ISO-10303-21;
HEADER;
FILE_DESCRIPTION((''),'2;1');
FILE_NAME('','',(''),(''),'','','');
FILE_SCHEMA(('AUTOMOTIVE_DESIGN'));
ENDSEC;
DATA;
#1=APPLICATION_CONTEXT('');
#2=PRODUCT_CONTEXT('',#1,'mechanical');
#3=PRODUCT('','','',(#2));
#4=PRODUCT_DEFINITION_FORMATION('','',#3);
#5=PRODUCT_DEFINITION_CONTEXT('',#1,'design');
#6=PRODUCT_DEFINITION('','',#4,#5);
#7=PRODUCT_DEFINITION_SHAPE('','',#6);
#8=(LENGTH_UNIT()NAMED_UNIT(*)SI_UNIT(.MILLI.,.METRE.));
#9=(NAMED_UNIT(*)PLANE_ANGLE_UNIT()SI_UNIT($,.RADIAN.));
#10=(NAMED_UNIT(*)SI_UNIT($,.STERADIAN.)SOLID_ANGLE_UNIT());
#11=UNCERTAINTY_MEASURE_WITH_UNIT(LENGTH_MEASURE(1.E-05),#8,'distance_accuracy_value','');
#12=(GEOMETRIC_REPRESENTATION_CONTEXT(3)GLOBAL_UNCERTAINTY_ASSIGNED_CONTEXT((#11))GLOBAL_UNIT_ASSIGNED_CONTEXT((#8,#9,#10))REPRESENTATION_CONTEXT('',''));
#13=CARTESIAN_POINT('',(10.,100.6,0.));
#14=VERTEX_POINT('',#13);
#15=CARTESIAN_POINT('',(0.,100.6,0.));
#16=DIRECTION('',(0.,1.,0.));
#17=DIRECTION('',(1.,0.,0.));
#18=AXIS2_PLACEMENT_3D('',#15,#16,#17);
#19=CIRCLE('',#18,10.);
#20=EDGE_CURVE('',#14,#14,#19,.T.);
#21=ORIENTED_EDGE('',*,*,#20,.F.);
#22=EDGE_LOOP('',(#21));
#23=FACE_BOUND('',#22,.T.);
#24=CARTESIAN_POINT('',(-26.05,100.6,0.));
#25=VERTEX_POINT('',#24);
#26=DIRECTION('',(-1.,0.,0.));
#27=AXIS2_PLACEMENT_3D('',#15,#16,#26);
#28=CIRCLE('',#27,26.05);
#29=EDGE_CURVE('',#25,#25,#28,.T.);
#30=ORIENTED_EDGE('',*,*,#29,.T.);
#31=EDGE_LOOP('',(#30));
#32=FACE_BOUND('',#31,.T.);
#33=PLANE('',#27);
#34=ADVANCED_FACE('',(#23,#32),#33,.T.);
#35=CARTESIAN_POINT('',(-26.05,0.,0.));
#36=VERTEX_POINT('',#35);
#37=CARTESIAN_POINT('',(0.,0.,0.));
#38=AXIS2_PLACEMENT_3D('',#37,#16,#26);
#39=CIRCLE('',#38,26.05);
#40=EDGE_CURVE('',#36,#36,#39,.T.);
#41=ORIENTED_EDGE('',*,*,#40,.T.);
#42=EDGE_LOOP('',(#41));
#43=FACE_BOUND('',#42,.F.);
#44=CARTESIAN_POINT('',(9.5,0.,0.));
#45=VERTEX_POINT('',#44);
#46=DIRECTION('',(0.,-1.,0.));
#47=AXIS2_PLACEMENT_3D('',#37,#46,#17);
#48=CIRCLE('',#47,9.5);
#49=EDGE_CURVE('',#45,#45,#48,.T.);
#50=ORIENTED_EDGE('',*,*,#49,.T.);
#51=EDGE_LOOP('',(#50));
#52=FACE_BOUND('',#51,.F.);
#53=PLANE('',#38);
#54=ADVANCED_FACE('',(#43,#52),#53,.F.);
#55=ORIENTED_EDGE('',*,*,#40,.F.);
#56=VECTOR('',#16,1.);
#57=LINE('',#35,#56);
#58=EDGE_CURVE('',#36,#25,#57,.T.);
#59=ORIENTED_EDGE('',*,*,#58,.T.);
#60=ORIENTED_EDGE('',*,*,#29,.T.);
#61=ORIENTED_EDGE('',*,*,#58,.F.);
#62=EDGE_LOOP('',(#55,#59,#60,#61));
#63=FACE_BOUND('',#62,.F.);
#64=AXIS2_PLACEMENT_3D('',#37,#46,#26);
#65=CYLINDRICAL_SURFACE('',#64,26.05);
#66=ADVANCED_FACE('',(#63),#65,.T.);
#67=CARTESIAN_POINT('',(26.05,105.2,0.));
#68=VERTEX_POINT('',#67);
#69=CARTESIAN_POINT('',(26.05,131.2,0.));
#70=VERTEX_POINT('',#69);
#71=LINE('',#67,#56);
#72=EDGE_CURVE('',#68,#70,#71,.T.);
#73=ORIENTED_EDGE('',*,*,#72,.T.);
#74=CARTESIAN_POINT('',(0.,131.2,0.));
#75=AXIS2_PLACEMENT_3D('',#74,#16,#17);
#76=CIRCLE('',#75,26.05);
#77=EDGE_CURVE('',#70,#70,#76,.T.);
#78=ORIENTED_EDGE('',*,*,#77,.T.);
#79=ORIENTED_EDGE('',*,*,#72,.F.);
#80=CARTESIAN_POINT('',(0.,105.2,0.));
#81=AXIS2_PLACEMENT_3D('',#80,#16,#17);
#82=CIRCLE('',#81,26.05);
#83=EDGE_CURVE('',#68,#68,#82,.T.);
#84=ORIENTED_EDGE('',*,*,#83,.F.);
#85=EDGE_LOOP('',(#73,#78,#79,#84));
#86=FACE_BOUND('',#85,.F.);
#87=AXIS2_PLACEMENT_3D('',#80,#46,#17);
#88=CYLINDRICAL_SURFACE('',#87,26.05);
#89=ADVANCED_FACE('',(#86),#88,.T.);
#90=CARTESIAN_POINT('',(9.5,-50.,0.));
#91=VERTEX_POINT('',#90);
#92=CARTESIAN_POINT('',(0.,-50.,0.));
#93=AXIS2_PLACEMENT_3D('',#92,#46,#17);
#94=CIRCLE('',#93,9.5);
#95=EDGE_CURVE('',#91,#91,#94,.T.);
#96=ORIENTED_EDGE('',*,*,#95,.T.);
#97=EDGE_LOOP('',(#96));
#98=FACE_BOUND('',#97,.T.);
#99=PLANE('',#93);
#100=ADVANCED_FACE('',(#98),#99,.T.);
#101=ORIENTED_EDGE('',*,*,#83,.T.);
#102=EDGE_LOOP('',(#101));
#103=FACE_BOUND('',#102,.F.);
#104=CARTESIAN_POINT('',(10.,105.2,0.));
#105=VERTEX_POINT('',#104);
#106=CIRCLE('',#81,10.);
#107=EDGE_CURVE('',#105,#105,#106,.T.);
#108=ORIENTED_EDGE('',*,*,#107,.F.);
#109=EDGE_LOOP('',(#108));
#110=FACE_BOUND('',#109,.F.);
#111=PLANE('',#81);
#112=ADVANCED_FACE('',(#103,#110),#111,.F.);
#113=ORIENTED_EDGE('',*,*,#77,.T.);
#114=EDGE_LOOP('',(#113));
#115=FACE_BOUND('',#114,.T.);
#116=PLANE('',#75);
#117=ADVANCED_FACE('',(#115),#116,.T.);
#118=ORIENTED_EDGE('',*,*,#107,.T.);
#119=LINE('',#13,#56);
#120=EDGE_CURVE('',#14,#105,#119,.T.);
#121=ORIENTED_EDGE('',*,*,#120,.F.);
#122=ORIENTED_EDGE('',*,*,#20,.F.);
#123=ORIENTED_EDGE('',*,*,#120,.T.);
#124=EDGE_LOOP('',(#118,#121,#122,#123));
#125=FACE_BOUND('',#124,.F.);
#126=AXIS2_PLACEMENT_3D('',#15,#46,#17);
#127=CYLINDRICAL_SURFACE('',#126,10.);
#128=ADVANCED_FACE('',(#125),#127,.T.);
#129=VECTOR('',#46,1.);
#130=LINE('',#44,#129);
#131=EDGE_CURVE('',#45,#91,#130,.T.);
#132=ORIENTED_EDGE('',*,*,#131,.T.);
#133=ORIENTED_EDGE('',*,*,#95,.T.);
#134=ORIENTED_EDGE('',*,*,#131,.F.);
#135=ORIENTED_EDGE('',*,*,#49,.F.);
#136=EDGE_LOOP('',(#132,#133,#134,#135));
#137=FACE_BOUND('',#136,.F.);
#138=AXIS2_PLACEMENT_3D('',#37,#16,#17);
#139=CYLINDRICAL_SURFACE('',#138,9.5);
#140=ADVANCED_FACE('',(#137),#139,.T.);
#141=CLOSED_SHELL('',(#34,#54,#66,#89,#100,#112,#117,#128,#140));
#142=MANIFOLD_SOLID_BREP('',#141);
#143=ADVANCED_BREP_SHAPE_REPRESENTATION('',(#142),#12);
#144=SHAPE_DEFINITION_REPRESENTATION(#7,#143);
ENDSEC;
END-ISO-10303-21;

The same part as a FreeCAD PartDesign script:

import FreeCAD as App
import Part
import Sketcher

V = App.Vector

doc = App.newDocument("Part")
body = doc.addObject("PartDesign::Body", "Body")

sketch1 = doc.addObject("Sketcher::SketchObject", "Sketch")
body.addObject(sketch1)
sketch1.AttachmentSupport = (doc.XZ_Plane, [""])
sketch1.MapMode = "FlatFace"
sketch1.addGeometry(Part.Circle(V(0, 0, 0), V(0, 0, 1), 26), False)
sketch1.addConstraint(Sketcher.Constraint("Coincident", 0, 3, -1, 1))
sketch1.addConstraint(Sketcher.Constraint("Diameter", 0, 52.1))
pad1 = doc.addObject("PartDesign::Pad", "Pad")
body.addObject(pad1)
pad1.Profile = sketch1
pad1.Length = 100.6
pad1.Reversed = True

sketch2 = doc.addObject("Sketcher::SketchObject", "Sketch001")
body.addObject(sketch2)
sketch2.AttachmentSupport = (doc.XZ_Plane, [""])
sketch2.MapMode = "FlatFace"
sketch2.AttachmentOffset = App.Placement(V(0, 0, -100.6), App.Rotation())
sketch2.addGeometry(Part.Circle(V(0, 0, 0), V(0, 0, 1), 10), False)
sketch2.addConstraint(Sketcher.Constraint("Coincident", 0, 3, -1, 1))
sketch2.addConstraint(Sketcher.Constraint("Diameter", 0, 20.0))
pad2 = doc.addObject("PartDesign::Pad", "Pad001")
body.addObject(pad2)
pad2.Profile = sketch2
pad2.Length = 4.6
pad2.Reversed = True

sketch3 = doc.addObject("Sketcher::SketchObject", "Sketch002")
body.addObject(sketch3)
sketch3.AttachmentSupport = (doc.XZ_Plane, [""])
sketch3.MapMode = "FlatFace"
sketch3.AttachmentOffset = App.Placement(V(0, 0, -105.2), App.Rotation())
sketch3.addGeometry(Part.Circle(V(0, 0, 0), V(0, 0, 1), 26), False)
sketch3.addConstraint(Sketcher.Constraint("Coincident", 0, 3, -1, 1))
sketch3.addConstraint(Sketcher.Constraint("Diameter", 0, 52.1))
pad3 = doc.addObject("PartDesign::Pad", "Pad002")
body.addObject(pad3)
pad3.Profile = sketch3
pad3.Length = 26
pad3.Reversed = True

sketch4 = doc.addObject("Sketcher::SketchObject", "Sketch003")
body.addObject(sketch4)
sketch4.AttachmentSupport = (doc.XZ_Plane, [""])
sketch4.MapMode = "FlatFace"
sketch4.addGeometry(Part.Circle(V(0, 0, 0), V(0, 0, 1), 10), False)
sketch4.addConstraint(Sketcher.Constraint("Coincident", 0, 3, -1, 1))
sketch4.addConstraint(Sketcher.Constraint("Diameter", 0, 19.0))
pad4 = doc.addObject("PartDesign::Pad", "Pad003")
body.addObject(pad4)
pad4.Profile = sketch4
pad4.Length = 50

doc.recompute()
